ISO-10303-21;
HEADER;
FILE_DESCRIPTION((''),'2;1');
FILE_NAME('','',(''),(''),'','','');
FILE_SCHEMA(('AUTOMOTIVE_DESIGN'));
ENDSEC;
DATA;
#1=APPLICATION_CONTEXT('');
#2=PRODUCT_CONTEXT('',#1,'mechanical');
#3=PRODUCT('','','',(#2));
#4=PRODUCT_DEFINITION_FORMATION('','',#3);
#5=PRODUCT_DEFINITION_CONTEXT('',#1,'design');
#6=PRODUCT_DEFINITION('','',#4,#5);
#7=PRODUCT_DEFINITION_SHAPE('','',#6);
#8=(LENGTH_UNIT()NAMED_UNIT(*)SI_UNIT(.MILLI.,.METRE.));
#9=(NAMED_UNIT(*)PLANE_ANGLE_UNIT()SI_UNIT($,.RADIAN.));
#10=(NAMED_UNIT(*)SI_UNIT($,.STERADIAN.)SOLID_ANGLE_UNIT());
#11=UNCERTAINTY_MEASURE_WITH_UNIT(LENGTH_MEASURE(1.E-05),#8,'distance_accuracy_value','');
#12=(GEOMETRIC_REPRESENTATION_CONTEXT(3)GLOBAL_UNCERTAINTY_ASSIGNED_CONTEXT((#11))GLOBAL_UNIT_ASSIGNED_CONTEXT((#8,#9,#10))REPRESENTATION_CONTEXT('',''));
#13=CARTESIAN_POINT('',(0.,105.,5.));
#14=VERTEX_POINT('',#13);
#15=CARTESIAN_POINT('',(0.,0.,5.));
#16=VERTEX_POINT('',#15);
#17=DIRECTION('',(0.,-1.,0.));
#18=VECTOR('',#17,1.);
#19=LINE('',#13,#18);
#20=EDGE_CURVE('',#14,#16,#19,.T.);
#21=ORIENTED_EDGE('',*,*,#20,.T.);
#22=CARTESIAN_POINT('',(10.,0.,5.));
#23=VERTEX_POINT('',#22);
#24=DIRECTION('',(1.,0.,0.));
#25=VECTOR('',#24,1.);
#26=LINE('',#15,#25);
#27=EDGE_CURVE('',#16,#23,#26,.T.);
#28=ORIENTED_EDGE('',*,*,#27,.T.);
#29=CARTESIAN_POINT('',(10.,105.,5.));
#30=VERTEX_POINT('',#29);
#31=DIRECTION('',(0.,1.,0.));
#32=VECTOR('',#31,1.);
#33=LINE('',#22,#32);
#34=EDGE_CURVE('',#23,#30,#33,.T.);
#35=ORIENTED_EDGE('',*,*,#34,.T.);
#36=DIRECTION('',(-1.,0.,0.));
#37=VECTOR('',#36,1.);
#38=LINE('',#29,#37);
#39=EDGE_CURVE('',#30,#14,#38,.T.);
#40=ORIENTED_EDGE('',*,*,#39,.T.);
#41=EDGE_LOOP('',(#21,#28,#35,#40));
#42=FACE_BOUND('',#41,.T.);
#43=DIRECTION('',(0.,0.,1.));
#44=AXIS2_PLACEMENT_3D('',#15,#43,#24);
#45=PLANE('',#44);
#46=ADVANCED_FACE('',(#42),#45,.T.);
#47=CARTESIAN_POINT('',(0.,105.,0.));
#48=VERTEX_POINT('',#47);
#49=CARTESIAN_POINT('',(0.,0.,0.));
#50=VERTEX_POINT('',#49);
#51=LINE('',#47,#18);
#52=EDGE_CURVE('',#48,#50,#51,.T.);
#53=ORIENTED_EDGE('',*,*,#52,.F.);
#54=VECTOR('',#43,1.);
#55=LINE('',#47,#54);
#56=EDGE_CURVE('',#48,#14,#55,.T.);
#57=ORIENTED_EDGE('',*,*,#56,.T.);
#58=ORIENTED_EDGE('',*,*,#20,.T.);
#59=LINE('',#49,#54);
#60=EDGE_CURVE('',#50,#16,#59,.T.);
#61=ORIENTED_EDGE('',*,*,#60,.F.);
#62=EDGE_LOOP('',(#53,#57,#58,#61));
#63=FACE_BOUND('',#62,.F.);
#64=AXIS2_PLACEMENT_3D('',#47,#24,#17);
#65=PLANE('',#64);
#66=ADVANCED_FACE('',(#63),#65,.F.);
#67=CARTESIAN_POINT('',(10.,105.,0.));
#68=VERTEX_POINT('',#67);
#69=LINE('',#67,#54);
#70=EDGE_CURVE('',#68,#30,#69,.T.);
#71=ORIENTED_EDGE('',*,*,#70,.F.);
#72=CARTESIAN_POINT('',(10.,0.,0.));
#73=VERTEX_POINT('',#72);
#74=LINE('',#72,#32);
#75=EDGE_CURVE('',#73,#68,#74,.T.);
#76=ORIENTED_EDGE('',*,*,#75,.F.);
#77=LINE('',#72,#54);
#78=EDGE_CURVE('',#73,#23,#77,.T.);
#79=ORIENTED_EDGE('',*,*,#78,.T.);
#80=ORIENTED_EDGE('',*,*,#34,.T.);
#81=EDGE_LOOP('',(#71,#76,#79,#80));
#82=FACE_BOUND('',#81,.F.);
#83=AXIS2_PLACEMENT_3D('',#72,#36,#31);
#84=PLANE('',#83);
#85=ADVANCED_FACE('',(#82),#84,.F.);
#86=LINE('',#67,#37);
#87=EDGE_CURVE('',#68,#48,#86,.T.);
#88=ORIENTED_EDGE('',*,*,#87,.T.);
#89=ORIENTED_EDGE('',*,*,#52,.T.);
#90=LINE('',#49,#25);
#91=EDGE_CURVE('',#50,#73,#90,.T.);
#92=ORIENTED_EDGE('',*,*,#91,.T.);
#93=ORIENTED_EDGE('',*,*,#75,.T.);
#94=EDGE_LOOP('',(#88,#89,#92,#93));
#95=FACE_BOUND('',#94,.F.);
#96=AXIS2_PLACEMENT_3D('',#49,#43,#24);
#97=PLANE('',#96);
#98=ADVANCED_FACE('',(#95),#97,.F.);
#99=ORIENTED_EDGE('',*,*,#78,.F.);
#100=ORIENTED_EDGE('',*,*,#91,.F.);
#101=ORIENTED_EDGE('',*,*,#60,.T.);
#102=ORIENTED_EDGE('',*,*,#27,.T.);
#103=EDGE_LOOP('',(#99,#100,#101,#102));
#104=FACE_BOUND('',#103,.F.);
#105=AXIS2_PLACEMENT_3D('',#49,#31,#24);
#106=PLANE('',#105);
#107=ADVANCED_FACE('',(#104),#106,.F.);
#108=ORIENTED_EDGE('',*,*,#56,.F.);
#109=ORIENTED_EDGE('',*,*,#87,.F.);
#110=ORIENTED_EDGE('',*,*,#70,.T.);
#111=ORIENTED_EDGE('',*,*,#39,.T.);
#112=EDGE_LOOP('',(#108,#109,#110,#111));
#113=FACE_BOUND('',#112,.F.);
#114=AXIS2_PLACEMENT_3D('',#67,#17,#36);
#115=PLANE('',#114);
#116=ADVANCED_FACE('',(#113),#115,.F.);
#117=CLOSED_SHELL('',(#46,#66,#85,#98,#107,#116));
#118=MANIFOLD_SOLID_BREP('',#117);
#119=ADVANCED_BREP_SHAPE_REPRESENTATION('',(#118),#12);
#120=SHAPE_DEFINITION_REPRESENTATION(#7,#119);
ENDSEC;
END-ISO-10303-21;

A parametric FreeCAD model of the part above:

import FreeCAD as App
import Part
import Sketcher

V = App.Vector
Q = App.Units.Quantity

doc = App.newDocument("Part")
params = doc.addObject("Spreadsheet::Sheet", "Params")
for row, (alias, value) in enumerate([
    ("sketch1_width", "10 mm"),
    ("sketch1_height", "105 mm"),
    ("pad1_length", "5 mm"),
], start=1):
    params.set(f"A{row}", alias)
    params.set(f"B{row}", "=" + value)
    params.setAlias(f"B{row}", alias)

body = doc.addObject("PartDesign::Body", "Body")

# Sketch on XY plane
sketch1 = doc.addObject("Sketcher::SketchObject", "Sketch")
body.addObject(sketch1)
sketch1.AttachmentSupport = (doc.XY_Plane, [""])
sketch1.MapMode = "FlatFace"
sketch1.addGeometry(Part.LineSegment(V(0, 105, 0), V(0, 0, 0)), False)
sketch1.addGeometry(Part.LineSegment(V(0, 0, 0), V(10, 0, 0)), False)
sketch1.addGeometry(Part.LineSegment(V(10, 0, 0), V(10, 105, 0)), False)
sketch1.addGeometry(Part.LineSegment(V(10, 105, 0), V(0, 105, 0)), False)
sketch1.addConstraint(Sketcher.Constraint("Coincident", 0, 2, 1, 1))
sketch1.addConstraint(Sketcher.Constraint("Coincident", 1, 2, 2, 1))
sketch1.addConstraint(Sketcher.Constraint("Coincident", 2, 2, 3, 1))
sketch1.addConstraint(Sketcher.Constraint("Coincident", 3, 2, 0, 1))
sketch1.addConstraint(Sketcher.Constraint("Vertical", 0))
sketch1.addConstraint(Sketcher.Constraint("Horizontal", 1))
sketch1.addConstraint(Sketcher.Constraint("Vertical", 2))
sketch1.addConstraint(Sketcher.Constraint("Horizontal", 3))
sketch1.addConstraint(Sketcher.Constraint("Coincident", 0, 2, -1, 1))
sketch1.addConstraint(Sketcher.Constraint("DistanceX", 1, 1, 1, 2, Q("10 mm")))
sketch1.addConstraint(Sketcher.Constraint("DistanceY", 0, 2, 0, 1, Q("105 mm")))
sketch1.setExpression("Constraints[9]", "Params.sketch1_width")
sketch1.setExpression("Constraints[10]", "Params.sketch1_height")
pad1 = doc.addObject("PartDesign::Pad", "Pad")
body.addObject(pad1)
pad1.Profile = sketch1
pad1.setExpression("Length", "Params.pad1_length")

doc.recompute()
